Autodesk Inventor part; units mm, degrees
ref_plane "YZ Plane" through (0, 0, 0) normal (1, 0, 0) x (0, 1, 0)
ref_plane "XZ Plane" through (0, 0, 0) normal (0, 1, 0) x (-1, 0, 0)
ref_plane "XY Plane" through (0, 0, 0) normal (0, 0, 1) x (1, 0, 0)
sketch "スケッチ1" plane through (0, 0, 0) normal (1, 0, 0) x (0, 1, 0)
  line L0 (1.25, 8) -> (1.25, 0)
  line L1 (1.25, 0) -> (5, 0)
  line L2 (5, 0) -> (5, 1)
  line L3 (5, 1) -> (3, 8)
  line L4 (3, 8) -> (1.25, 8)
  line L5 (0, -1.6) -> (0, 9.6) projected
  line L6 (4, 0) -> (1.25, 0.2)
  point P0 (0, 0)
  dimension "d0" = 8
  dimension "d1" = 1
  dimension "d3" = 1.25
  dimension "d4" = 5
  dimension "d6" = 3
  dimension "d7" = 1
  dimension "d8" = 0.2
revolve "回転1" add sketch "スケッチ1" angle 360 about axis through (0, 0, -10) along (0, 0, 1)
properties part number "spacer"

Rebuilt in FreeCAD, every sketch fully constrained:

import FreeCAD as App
import Part
import Sketcher
from FreeCAD import Vector
Q = App.Units.Quantity

doc = App.newDocument("Part")
body = doc.addObject("PartDesign::Body", "Body")

# Sketch on YZ plane
sketch1 = doc.addObject("Sketcher::SketchObject", "Sketch")
body.addObject(sketch1)
sketch1.AttachmentSupport = (doc.YZ_Plane, [""])
sketch1.MapMode = "FlatFace"
sketch1.addGeometry(Part.LineSegment(Vector(3, 8, 0), Vector(1.2, 8, 0)), False)
sketch1.addGeometry(Part.LineSegment(Vector(1.2, 8, 0), Vector(1.2, 0, 0)), False)
sketch1.addGeometry(Part.LineSegment(Vector(1.2, 0, 0), Vector(5, 0, 0)), False)
sketch1.addGeometry(Part.LineSegment(Vector(5, 0, 0), Vector(5, 1, 0)), False)
sketch1.addGeometry(Part.LineSegment(Vector(5, 1, 0), Vector(3, 8, 0)), False)
sketch1.addConstraint(Sketcher.Constraint("Coincident", 0, 2, 1, 1))
sketch1.addConstraint(Sketcher.Constraint("Coincident", 1, 2, 2, 1))
sketch1.addConstraint(Sketcher.Constraint("Coincident", 2, 2, 3, 1))
sketch1.addConstraint(Sketcher.Constraint("Coincident", 3, 2, 4, 1))
sketch1.addConstraint(Sketcher.Constraint("Coincident", 4, 2, 0, 1))
sketch1.addConstraint(Sketcher.Constraint("Horizontal", 0))
sketch1.addConstraint(Sketcher.Constraint("Vertical", 1))
sketch1.addConstraint(Sketcher.Constraint("Horizontal", 2))
sketch1.addConstraint(Sketcher.Constraint("Vertical", 3))
sketch1.addConstraint(Sketcher.Constraint("PointOnObject", 1, 2, -1))
sketch1.addConstraint(Sketcher.Constraint("DistanceY", 1, 2, 1, 1, Q("8 mm")))
sketch1.addConstraint(Sketcher.Constraint("DistanceY", 3, 1, 3, 2, Q("1 mm")))
sketch1.addConstraint(Sketcher.Constraint("DistanceX", -1, 1, 2, 2, Q("5 mm")))
sketch1.addConstraint(Sketcher.Constraint("DistanceX", -1, 1, 4, 2, Q("3 mm")))
sketch1.addConstraint(Sketcher.Constraint("DistanceX", -1, 1, 0, 2, Q("1.25 mm")))
revolution = doc.addObject("PartDesign::Revolution", "Revolution")
body.addObject(revolution)
revolution.Profile = sketch1
revolution.ReferenceAxis = (sketch1, ["V_Axis"])
revolution.Angle = 360

doc.recompute()
